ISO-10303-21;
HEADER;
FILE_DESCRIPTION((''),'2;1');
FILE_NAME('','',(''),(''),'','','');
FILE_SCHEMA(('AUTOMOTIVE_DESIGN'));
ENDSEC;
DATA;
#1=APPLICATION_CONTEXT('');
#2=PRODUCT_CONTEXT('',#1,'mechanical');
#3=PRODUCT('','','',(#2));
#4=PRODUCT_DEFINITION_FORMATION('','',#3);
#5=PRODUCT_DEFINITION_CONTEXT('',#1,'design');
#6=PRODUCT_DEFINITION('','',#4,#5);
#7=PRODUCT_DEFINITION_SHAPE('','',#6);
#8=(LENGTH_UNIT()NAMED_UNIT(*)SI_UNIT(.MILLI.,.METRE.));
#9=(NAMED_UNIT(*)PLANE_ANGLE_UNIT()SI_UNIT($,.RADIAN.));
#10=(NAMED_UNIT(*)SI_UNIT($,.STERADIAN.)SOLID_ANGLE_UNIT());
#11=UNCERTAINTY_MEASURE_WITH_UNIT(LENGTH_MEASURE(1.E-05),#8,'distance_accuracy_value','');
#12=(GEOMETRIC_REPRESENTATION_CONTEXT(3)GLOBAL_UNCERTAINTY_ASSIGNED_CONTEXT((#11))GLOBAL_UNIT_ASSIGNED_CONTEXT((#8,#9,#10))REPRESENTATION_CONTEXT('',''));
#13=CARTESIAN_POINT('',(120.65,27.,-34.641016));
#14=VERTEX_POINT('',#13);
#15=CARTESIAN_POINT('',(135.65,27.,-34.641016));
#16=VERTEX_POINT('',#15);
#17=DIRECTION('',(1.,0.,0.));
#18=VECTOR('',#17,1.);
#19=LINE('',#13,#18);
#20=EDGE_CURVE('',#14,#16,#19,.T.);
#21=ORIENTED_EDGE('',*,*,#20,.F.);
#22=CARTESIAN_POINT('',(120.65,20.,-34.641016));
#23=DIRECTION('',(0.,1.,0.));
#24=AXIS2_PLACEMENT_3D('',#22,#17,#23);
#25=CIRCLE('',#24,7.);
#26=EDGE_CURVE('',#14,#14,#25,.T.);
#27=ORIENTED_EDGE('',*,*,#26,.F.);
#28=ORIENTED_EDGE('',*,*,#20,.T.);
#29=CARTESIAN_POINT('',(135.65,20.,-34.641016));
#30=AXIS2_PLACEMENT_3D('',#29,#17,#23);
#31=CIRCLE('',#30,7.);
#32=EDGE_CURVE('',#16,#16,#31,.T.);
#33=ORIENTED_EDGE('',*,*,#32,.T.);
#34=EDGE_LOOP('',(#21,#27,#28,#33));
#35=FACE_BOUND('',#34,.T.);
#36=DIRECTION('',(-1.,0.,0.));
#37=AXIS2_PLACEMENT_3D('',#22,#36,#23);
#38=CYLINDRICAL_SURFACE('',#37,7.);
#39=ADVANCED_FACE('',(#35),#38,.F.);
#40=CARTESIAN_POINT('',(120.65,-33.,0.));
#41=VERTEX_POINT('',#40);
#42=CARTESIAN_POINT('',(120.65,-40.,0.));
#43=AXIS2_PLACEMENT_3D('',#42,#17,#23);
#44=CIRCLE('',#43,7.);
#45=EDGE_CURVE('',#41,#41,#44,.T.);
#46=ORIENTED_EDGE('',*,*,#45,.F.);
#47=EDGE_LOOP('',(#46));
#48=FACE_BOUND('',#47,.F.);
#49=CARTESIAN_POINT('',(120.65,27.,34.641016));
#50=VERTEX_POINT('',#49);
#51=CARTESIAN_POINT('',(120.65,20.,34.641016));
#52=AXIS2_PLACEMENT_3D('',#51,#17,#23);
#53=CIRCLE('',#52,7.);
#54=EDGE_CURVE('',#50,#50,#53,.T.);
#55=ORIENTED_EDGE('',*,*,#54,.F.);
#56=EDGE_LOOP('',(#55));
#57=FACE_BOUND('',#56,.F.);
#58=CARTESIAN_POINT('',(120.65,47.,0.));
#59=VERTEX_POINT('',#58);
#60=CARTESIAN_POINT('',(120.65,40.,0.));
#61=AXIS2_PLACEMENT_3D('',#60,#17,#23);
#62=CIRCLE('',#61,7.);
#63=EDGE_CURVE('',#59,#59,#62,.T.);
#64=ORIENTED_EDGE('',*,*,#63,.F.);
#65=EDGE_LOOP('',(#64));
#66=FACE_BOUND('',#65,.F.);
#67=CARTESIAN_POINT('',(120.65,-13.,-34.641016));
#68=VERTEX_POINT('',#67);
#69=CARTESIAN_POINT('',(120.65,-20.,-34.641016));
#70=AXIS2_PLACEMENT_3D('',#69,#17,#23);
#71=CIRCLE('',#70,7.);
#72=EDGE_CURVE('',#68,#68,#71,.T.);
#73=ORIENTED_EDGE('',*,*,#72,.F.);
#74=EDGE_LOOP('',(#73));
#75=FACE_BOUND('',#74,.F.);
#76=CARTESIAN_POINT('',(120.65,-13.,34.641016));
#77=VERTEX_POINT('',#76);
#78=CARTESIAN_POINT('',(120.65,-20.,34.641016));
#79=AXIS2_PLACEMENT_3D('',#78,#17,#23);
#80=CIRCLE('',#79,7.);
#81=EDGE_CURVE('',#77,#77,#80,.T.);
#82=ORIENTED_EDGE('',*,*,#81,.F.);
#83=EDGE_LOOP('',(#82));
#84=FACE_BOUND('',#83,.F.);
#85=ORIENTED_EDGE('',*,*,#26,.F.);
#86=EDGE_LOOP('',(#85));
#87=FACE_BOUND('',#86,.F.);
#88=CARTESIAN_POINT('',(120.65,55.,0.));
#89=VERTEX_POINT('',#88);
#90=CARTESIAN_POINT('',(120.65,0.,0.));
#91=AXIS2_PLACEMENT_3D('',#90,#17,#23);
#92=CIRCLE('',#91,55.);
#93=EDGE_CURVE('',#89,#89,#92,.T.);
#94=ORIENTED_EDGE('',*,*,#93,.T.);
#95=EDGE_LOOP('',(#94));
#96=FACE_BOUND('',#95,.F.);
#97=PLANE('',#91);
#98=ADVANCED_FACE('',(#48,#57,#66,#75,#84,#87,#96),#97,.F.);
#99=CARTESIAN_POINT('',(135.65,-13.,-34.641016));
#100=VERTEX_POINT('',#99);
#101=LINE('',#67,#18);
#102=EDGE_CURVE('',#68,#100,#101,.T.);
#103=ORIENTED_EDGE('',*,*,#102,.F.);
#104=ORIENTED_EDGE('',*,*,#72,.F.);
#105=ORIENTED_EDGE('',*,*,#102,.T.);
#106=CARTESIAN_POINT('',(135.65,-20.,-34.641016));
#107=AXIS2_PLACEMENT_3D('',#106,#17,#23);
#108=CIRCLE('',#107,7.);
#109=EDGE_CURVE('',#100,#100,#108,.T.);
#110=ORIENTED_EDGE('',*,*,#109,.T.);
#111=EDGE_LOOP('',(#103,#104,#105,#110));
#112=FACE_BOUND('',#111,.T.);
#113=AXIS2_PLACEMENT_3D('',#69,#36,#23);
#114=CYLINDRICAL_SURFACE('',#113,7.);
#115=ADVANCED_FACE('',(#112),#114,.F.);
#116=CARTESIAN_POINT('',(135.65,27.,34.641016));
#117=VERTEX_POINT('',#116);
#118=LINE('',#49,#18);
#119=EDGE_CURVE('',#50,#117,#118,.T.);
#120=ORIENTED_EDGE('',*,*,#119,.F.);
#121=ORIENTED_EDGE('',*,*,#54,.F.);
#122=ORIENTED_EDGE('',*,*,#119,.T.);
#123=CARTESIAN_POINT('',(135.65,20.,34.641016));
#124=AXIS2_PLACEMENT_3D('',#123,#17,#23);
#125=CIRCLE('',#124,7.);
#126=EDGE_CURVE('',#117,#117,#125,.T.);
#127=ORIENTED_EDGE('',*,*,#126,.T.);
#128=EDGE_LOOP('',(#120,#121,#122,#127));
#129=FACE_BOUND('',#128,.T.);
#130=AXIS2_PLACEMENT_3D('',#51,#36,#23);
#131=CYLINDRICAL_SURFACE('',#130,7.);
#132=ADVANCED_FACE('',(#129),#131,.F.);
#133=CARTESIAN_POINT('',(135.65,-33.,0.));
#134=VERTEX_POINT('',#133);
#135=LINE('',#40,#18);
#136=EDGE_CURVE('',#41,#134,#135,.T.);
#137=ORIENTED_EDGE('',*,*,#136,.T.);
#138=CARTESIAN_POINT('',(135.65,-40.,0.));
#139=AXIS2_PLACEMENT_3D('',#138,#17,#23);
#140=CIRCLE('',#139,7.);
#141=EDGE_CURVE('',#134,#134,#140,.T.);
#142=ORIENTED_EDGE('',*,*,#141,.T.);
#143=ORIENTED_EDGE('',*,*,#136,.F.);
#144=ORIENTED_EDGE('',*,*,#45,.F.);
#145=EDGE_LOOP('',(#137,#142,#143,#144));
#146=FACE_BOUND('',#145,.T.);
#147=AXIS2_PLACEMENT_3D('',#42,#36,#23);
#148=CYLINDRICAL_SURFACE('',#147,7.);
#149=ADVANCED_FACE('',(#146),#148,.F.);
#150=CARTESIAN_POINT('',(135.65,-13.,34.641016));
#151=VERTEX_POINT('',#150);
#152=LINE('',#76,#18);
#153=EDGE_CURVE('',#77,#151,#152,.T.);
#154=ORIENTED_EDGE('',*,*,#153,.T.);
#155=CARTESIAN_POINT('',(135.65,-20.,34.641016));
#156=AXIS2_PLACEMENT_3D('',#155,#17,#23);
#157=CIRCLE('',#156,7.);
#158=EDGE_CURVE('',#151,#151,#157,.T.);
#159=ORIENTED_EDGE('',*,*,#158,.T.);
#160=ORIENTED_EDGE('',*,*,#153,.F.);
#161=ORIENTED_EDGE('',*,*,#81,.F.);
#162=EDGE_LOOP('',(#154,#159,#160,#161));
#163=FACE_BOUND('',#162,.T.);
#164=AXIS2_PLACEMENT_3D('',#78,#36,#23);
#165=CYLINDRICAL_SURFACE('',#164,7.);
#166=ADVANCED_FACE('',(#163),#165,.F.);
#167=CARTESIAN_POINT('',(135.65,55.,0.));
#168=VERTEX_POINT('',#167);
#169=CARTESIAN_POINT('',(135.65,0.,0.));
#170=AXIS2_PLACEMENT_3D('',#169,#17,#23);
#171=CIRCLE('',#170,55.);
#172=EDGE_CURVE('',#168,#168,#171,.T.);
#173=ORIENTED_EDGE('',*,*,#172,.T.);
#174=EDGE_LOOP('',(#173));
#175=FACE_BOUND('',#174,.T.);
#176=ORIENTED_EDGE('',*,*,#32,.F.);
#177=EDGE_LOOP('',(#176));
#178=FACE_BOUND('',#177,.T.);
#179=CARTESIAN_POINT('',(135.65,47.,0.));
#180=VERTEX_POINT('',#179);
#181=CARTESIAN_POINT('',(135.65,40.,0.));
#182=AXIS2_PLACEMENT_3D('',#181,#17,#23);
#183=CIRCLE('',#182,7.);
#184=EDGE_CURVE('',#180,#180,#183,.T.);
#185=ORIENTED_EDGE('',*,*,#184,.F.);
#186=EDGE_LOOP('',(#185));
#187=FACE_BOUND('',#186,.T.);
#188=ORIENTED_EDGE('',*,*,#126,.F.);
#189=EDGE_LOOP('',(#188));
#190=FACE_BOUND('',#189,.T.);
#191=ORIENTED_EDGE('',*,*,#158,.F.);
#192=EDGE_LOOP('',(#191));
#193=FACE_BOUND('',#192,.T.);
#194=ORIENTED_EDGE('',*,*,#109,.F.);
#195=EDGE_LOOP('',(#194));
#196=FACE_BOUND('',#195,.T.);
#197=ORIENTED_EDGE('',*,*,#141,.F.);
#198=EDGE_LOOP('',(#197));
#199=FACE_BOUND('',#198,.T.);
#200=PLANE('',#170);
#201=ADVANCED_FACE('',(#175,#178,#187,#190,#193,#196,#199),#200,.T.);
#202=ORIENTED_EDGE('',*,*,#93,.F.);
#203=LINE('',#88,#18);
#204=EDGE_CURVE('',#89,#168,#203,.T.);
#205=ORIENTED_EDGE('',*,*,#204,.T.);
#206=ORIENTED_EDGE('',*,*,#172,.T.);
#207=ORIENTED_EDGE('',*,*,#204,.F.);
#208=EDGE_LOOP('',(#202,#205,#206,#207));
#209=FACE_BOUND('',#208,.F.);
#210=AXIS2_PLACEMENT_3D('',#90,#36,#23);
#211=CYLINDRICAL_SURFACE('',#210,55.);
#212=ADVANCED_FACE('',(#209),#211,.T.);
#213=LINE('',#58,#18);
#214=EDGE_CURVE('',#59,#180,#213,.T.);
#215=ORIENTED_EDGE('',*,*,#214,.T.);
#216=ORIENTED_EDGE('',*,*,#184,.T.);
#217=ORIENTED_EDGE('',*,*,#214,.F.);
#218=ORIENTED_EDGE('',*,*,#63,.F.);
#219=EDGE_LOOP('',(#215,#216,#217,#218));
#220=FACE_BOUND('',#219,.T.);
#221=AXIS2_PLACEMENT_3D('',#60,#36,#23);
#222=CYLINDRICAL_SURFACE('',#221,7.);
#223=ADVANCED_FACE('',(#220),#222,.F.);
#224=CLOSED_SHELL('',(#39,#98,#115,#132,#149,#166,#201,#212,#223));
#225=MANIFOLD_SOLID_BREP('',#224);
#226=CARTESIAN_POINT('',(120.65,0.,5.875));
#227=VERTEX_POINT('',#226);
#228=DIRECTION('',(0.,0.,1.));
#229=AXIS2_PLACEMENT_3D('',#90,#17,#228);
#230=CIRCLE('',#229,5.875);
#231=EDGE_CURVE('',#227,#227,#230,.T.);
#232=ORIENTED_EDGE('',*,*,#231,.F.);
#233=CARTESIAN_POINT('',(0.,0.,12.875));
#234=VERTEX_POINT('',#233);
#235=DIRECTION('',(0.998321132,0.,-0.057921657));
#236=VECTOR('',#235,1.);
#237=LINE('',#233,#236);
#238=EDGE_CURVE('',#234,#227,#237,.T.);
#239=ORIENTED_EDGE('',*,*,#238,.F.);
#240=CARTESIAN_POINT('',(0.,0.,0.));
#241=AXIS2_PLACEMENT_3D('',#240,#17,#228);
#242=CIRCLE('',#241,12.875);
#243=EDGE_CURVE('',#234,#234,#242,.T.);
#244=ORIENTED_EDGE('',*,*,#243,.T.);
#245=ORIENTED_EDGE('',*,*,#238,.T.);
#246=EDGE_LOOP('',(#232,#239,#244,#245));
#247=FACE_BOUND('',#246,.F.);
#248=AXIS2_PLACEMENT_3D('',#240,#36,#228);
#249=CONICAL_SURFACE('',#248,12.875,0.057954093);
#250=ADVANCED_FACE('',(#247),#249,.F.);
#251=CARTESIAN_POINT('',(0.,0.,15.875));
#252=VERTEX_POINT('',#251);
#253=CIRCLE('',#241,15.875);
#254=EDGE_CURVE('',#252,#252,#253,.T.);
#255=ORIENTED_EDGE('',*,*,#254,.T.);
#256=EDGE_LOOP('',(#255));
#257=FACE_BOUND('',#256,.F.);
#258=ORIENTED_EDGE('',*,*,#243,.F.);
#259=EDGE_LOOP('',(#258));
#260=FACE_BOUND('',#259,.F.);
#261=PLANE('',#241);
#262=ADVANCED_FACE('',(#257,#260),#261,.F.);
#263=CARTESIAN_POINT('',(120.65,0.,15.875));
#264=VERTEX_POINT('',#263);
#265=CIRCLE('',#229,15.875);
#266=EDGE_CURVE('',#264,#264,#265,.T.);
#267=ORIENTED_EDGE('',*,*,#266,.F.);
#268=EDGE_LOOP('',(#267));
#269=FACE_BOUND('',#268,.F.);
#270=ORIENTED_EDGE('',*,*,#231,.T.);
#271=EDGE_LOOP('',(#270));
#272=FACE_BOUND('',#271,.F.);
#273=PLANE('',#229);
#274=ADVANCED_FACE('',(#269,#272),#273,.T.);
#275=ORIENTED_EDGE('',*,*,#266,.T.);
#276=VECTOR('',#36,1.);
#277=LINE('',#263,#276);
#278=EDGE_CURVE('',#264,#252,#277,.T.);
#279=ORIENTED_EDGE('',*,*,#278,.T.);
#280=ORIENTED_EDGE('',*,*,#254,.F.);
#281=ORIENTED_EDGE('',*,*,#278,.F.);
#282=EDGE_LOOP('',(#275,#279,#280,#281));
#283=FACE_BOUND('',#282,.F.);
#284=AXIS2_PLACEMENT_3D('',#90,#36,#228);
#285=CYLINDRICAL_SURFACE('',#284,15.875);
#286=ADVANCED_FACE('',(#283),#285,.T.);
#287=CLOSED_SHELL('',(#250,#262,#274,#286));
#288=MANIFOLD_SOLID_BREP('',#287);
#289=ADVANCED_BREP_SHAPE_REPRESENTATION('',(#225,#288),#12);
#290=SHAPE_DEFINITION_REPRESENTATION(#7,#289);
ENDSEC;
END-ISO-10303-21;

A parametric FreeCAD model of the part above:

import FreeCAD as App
import Part
import Sketcher
from FreeCAD import Vector


def add_polygon(sketch, points):
    """Adds a closed chain of lines whose ends are joined by coincident constraints."""
    first, n = sketch.GeometryCount, len(points)
    for a, b in zip(points, points[1:] + points[:1]):
        sketch.addGeometry(Part.LineSegment(App.Vector(*a, 0), App.Vector(*b, 0)), False)
    for i in range(n):
        sketch.addConstraint(Sketcher.Constraint("Coincident", first + i, 2, first + (i + 1) % n, 1))

doc = App.newDocument("Part")
body = doc.addObject("PartDesign::Body", "Body")

sketch1 = doc.addObject("Sketcher::SketchObject", "Sketch")
body.addObject(sketch1)
sketch1.AttachmentSupport = (doc.XZ_Plane, [""])
sketch1.MapMode = "FlatFace"
add_polygon(sketch1, [(0, 15.9), (0, 12.9), (120.7, 5.9), (120.7, 15.9)])
sketch1.addConstraint([
    Sketcher.Constraint("Vertical", 0),
    Sketcher.Constraint("Vertical", 2),
    Sketcher.Constraint("Horizontal", 3),
    Sketcher.Constraint("PointOnObject", 0, 2, -2),
    Sketcher.Constraint("DistanceY", 0, 2, 0, 1, 3.0),
    Sketcher.Constraint("DistanceY", 2, 1, 2, 2, 10.0),
    Sketcher.Constraint("DistanceX", 3, 2, 3, 1, 120.65),
    Sketcher.Constraint("DistanceY", -1, 1, 0, 2, 12.875),
])
revolution = doc.addObject("PartDesign::Revolution", "Revolution")
body.addObject(revolution)
revolution.Profile = sketch1
revolution.ReferenceAxis = (sketch1, ["H_Axis"])
revolution.Angle = 360
body2 = doc.addObject("PartDesign::Body", "Body001")

sketch2 = doc.addObject("Sketcher::SketchObject", "Sketch001")
body2.addObject(sketch2)
sketch2.AttachmentSupport = (doc.getObject("YZ_Plane001"), [""])
sketch2.MapMode = "FlatFace"
sketch2.AttachmentOffset = App.Placement(Vector(0, 0, 120.65), App.Rotation())
sketch2.addGeometry([
    Part.Circle(Vector(0, 0, 0), Vector(0, 0, 1), 55),
    Part.Circle(Vector(-20, -35, 0), Vector(0, 0, 1), 7),
    Part.Circle(Vector(20, -35, 0), Vector(0, 0, 1), 7),
    Part.Circle(Vector(-40, 0, 0), Vector(0, 0, 1), 7),
    Part.Circle(Vector(-20, 35, 0), Vector(0, 0, 1), 7),
    Part.Circle(Vector(40, 0, 0), Vector(0, 0, 1), 7),
    Part.Circle(Vector(20, 35, 0), Vector(0, 0, 1), 7),
], False)
sketch2.addConstraint([
    Sketcher.Constraint("Coincident", 0, 3, -1, 1),
    Sketcher.Constraint("Equal", 1, 2),
    Sketcher.Constraint("Equal", 2, 3),
    Sketcher.Constraint("Equal", 3, 4),
    Sketcher.Constraint("Equal", 4, 5),
    Sketcher.Constraint("Equal", 5, 6),
    Sketcher.Constraint("Symmetric", 2, 3, 4, 3, -1, 1),
    Sketcher.Constraint("Symmetric", 3, 3, 5, 3, -1, 1),
    Sketcher.Constraint("Symmetric", 1, 3, 6, 3, -1, 1),
    Sketcher.Constraint("Symmetric", 1, 3, 2, 3, -2),
    Sketcher.Constraint("PointOnObject", 3, 3, -1),
    Sketcher.Constraint("Diameter", 0, 110.0),
    Sketcher.Constraint("Diameter", 1, 14.0),
    Sketcher.Constraint("DistanceX", 1, 3, -1, 1, 20.0),
    Sketcher.Constraint("DistanceX", 3, 3, -1, 1, 40.0),
    Sketcher.Constraint("DistanceY", 1, 3, 4, 3, 69.282032),
])
pad1 = doc.addObject("PartDesign::Pad", "Pad")
body2.addObject(pad1)
pad1.Profile = sketch2
pad1.Length = 15

doc.recompute()
